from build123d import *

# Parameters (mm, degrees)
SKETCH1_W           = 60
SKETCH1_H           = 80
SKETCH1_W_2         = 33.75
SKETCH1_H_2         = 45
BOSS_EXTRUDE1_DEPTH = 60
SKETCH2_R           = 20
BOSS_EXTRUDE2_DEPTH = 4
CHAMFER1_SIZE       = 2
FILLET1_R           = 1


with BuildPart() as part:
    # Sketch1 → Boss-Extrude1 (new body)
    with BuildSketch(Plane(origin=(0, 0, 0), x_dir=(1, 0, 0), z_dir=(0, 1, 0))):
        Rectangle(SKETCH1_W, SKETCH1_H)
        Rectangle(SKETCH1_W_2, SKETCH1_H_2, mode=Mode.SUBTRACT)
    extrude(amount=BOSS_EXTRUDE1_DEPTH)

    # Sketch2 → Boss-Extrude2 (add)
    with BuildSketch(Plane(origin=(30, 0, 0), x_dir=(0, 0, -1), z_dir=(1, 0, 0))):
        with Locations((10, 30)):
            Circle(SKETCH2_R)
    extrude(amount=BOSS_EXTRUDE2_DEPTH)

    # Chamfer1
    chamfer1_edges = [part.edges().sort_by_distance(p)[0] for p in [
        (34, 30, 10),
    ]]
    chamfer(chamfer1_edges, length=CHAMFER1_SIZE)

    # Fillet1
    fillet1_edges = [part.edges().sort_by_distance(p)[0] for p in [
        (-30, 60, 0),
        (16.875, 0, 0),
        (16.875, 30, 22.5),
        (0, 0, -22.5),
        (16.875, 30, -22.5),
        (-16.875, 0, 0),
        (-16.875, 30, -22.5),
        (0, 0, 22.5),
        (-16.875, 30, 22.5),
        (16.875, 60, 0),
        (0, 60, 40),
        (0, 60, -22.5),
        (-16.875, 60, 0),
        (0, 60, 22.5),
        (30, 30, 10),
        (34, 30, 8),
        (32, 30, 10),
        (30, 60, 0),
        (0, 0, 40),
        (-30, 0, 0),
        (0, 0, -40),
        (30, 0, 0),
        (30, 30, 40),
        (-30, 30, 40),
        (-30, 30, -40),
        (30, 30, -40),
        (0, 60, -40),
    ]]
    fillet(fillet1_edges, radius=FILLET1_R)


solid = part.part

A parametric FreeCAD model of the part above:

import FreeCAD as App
import Part
import Sketcher
from FreeCAD import Vector


def edges_at(feature, points):
    """Names of the edges that pass closest to the given points."""
    edges = feature.Shape.Edges
    near = lambda p: min(range(len(edges)), key=lambda i: edges[i].distToShape(Part.Vertex(*p))[0])
    return sorted({f"Edge{near(p) + 1}" for p in points})

doc = App.newDocument("Part")
body = doc.addObject("PartDesign::Body", "Body")

# Sketch on XZ plane
sketch1 = doc.addObject("Sketcher::SketchObject", "Sketch")
body.addObject(sketch1)
sketch1.AttachmentSupport = (doc.XZ_Plane, [""])
sketch1.MapMode = "FlatFace"
sketch1.addGeometry(Part.LineSegment(Vector(-30, -40, 0), Vector(-30, 40, 0)), False)
sketch1.addGeometry(Part.LineSegment(Vector(-30, 40, 0), Vector(30, 40, 0)), False)
sketch1.addGeometry(Part.LineSegment(Vector(30, 40, 0), Vector(30, -40, 0)), False)
sketch1.addGeometry(Part.LineSegment(Vector(30, -40, 0), Vector(-30, -40, 0)), False)
sketch1.addGeometry(Part.LineSegment(Vector(17, 22, 0), Vector(-17, 22, 0)), False)
sketch1.addGeometry(Part.LineSegment(Vector(-17, 22, 0), Vector(-17, -22, 0)), False)
sketch1.addGeometry(Part.LineSegment(Vector(-17, -22, 0), Vector(17, -22, 0)), False)
sketch1.addGeometry(Part.LineSegment(Vector(17, -22, 0), Vector(17, 22, 0)), False)
sketch1.addConstraint(Sketcher.Constraint("Coincident", 0, 2, 1, 1))
sketch1.addConstraint(Sketcher.Constraint("Coincident", 1, 2, 2, 1))
sketch1.addConstraint(Sketcher.Constraint("Coincident", 2, 2, 3, 1))
sketch1.addConstraint(Sketcher.Constraint("Coincident", 3, 2, 0, 1))
sketch1.addConstraint(Sketcher.Constraint("Coincident", 4, 2, 5, 1))
sketch1.addConstraint(Sketcher.Constraint("Coincident", 5, 2, 6, 1))
sketch1.addConstraint(Sketcher.Constraint("Coincident", 6, 2, 7, 1))
sketch1.addConstraint(Sketcher.Constraint("Coincident", 7, 2, 4, 1))
sketch1.addConstraint(Sketcher.Constraint("Vertical", 0))
sketch1.addConstraint(Sketcher.Constraint("Horizontal", 1))
sketch1.addConstraint(Sketcher.Constraint("Vertical", 2))
sketch1.addConstraint(Sketcher.Constraint("Horizontal", 3))
sketch1.addConstraint(Sketcher.Constraint("Horizontal", 4))
sketch1.addConstraint(Sketcher.Constraint("Vertical", 5))
sketch1.addConstraint(Sketcher.Constraint("Horizontal", 6))
sketch1.addConstraint(Sketcher.Constraint("Vertical", 7))
sketch1.addConstraint(Sketcher.Constraint("Symmetric", 0, 2, 2, 2, -1, 1))
sketch1.addConstraint(Sketcher.Constraint("Symmetric", 4, 2, 6, 2, -1, 1))
sketch1.addConstraint(Sketcher.Constraint("DistanceX", 1, 1, 1, 2, 60.0))
sketch1.addConstraint(Sketcher.Constraint("DistanceY", 0, 1, 0, 2, 80.0))
sketch1.addConstraint(Sketcher.Constraint("DistanceY", 5, 2, 5, 1, 45.0))
sketch1.addConstraint(Sketcher.Constraint("DistanceX", 4, 2, 4, 1, 33.75))
pad1 = doc.addObject("PartDesign::Pad", "Pad")
body.addObject(pad1)
pad1.Profile = sketch1
pad1.Length = 60
pad1.Reversed = True

# Sketch on YZ plane
sketch2 = doc.addObject("Sketcher::SketchObject", "Sketch001")
body.addObject(sketch2)
sketch2.AttachmentSupport = (doc.YZ_Plane, [""])
sketch2.MapMode = "FlatFace"
sketch2.AttachmentOffset = App.Placement(Vector(0, 0, 30), App.Rotation())
sketch2.addGeometry(Part.Circle(Vector(30, -10, 0), Vector(0, 0, 1), 20), False)
sketch2.addConstraint(Sketcher.Constraint("Diameter", 0, 40.0))
sketch2.addConstraint(Sketcher.Constraint("DistanceX", -1, 1, 0, 3, 30.0))
sketch2.addConstraint(Sketcher.Constraint("DistanceY", 0, 3, -1, 1, 10.0))
pad2 = doc.addObject("PartDesign::Pad", "Pad001")
body.addObject(pad2)
pad2.Profile = sketch2
pad2.Length = 4
doc.recompute()

chamfer = doc.addObject("PartDesign::Chamfer", "Chamfer")
body.addObject(chamfer)
chamfer.Base = (pad2, edges_at(pad2, [(34, 30, 10)]))
chamfer.Size = 2
doc.recompute()

fillet = doc.addObject("PartDesign::Fillet", "Fillet")
body.addObject(fillet)
fillet.Base = (chamfer, ["Edge1"])
fillet.UseAllEdges = True
fillet.Radius = 1

doc.recompute()
